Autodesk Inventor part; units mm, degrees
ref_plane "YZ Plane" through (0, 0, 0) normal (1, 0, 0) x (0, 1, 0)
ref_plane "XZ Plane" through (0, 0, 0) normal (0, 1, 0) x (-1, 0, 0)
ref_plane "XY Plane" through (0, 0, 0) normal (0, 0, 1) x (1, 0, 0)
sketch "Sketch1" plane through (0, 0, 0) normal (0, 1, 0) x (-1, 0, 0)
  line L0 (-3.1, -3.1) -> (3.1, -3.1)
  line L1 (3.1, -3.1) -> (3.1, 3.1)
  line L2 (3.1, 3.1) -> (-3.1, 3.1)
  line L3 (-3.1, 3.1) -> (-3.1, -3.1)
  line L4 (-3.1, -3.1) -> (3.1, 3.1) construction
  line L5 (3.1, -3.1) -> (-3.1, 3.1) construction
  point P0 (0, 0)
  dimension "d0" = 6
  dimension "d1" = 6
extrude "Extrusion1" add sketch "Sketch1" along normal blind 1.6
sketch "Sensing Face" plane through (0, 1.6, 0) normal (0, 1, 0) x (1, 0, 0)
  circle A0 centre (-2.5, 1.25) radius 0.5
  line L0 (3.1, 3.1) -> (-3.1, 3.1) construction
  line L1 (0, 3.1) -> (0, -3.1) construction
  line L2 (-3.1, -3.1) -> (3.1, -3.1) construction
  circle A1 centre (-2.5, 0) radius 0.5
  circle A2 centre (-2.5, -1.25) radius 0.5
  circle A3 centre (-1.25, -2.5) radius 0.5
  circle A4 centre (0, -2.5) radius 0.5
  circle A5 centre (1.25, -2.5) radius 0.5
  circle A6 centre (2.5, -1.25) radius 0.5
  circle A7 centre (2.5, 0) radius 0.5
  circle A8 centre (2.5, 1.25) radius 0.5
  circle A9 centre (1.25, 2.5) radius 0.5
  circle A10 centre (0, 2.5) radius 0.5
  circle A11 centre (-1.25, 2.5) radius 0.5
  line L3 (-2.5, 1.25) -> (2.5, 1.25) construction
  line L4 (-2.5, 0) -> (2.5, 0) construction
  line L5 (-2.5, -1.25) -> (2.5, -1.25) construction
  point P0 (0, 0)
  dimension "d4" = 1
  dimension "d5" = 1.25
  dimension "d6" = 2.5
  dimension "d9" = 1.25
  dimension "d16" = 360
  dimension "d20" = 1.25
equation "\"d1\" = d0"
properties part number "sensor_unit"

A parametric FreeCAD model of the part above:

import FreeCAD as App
import Part
import Sketcher

V = App.Vector
Q = App.Units.Quantity

doc = App.newDocument("Part")
body = doc.addObject("PartDesign::Body", "Body")

sketch1 = body.newObject("Sketcher::SketchObject", "Sketch")
sketch1.AttachmentSupport = (doc.getObject("XZ_Plane"), [""])
sketch1.MapMode = "FlatFace"
sketch1.addGeometry(Part.LineSegment(V(3, 3, 0), V(3, -3, 0)), False)
sketch1.addGeometry(Part.LineSegment(V(3, -3, 0), V(-3, -3, 0)), False)
sketch1.addGeometry(Part.LineSegment(V(-3, -3, 0), V(-3, 3, 0)), False)
sketch1.addGeometry(Part.LineSegment(V(-3, 3, 0), V(3, 3, 0)), False)
sketch1.addConstraint(Sketcher.Constraint("Coincident", 0, 2, 1, 1))
sketch1.addConstraint(Sketcher.Constraint("Coincident", 1, 2, 2, 1))
sketch1.addConstraint(Sketcher.Constraint("Coincident", 2, 2, 3, 1))
sketch1.addConstraint(Sketcher.Constraint("Coincident", 3, 2, 0, 1))
sketch1.addConstraint(Sketcher.Constraint("Vertical", 0))
sketch1.addConstraint(Sketcher.Constraint("Horizontal", 1))
sketch1.addConstraint(Sketcher.Constraint("Vertical", 2))
sketch1.addConstraint(Sketcher.Constraint("Horizontal", 3))
sketch1.addConstraint(Sketcher.Constraint("Symmetric", 0, 2, 2, 2, -1, 1))
sketch1.addConstraint(Sketcher.Constraint("Equal", 3, 0))
sketch1.addConstraint(Sketcher.Constraint("DistanceX", 1, 2, 1, 1, Q("0.2441 in")))
pad1 = body.newObject("PartDesign::Pad", "Pad")
pad1.Profile = sketch1
pad1.Length = Q("0.0629921 in")
pad1.Reversed = True

doc.recompute()
